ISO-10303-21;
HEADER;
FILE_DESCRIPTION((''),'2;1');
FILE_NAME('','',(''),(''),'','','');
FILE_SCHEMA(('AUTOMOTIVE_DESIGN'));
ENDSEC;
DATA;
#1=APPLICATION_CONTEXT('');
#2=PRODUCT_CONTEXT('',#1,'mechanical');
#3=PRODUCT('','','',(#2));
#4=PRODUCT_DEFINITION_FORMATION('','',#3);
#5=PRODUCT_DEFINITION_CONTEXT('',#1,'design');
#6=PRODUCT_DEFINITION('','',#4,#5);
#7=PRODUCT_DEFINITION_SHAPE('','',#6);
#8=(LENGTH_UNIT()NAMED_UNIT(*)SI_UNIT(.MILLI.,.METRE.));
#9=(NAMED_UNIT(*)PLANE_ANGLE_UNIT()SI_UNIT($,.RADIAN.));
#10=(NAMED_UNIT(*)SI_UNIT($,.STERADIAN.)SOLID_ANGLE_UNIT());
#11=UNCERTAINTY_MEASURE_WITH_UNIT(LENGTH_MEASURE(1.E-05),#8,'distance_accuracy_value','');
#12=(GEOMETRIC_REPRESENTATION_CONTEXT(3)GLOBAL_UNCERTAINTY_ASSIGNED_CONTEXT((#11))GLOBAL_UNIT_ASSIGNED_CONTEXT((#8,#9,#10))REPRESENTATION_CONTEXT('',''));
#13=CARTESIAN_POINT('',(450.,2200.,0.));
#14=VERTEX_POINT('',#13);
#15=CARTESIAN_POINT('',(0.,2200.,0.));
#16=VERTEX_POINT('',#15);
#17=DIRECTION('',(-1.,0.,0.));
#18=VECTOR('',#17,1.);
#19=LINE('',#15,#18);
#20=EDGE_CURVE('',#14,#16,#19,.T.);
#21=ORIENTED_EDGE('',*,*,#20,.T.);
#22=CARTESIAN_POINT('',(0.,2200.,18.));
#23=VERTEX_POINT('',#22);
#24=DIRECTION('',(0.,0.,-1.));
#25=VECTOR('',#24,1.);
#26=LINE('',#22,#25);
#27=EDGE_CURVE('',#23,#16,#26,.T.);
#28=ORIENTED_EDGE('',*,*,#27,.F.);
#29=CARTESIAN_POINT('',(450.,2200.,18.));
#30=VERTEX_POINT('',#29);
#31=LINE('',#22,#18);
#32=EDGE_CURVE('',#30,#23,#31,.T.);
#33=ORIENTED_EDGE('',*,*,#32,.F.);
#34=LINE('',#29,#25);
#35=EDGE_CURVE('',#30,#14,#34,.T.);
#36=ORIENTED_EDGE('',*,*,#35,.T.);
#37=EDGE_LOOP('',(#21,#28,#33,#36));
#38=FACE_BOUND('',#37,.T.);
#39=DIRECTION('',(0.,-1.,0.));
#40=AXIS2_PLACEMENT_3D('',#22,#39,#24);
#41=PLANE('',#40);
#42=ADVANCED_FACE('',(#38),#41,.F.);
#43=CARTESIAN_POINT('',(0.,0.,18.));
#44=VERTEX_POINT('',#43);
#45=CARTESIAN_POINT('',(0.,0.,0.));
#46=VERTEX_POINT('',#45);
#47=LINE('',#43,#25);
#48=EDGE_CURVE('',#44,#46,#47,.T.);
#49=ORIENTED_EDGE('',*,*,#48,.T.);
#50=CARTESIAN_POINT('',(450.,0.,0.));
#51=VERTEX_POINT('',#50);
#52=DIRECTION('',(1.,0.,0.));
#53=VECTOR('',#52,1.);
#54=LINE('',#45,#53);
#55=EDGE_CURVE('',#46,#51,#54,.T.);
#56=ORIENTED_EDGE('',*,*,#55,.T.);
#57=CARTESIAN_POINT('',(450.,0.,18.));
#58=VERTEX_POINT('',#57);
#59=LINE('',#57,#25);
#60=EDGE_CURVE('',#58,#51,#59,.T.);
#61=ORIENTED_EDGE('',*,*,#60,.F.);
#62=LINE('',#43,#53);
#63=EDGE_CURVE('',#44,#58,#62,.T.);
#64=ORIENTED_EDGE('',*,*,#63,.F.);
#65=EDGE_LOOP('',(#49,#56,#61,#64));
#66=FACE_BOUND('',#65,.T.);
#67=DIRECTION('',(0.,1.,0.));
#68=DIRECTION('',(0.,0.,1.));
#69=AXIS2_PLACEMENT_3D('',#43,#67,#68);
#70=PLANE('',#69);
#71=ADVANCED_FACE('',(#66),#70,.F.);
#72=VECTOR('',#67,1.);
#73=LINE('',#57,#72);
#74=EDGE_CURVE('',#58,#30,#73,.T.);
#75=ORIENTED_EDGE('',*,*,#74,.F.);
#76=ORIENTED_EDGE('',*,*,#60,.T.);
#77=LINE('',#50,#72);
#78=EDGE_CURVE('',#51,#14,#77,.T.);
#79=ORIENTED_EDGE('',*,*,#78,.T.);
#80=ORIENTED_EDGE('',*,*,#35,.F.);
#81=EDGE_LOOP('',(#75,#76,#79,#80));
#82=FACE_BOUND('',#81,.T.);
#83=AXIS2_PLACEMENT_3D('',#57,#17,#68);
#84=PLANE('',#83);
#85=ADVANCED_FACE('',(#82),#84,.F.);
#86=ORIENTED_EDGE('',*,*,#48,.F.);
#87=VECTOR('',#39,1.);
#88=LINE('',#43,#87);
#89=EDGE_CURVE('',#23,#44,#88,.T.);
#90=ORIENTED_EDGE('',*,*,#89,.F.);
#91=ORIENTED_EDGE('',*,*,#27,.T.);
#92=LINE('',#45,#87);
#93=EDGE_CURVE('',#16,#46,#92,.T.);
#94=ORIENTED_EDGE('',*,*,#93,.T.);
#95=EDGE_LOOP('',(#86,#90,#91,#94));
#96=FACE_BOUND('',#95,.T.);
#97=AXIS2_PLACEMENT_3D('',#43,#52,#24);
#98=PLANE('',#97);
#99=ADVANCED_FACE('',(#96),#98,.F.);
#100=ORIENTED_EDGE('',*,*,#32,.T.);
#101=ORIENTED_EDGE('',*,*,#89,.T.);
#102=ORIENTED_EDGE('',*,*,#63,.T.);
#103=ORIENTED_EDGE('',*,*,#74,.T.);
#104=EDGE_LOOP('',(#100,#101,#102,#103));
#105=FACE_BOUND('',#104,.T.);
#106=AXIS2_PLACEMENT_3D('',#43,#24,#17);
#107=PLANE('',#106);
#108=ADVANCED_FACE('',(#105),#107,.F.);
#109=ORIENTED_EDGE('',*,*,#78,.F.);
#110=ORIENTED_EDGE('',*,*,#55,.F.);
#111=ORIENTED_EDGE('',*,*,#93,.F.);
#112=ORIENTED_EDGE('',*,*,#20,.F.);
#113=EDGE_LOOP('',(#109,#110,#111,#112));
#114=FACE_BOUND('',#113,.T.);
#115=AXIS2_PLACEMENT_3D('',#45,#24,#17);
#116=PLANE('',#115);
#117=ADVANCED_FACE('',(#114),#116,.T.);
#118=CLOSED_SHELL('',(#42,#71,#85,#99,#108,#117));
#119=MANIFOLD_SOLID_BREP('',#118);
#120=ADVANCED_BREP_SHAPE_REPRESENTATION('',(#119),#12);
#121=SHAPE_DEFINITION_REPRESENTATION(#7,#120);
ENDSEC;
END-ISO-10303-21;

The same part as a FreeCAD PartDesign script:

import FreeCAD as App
import Part
import Sketcher

doc = App.newDocument("Part")
body = doc.addObject("PartDesign::Body", "Body")

# Sketch on XY plane
sketch1 = body.newObject("Sketcher::SketchObject", "Sketch")
sketch1.AttachmentSupport = (doc.getObject("XY_Plane"), [""])
sketch1.MapMode = "FlatFace"
sketch1.addGeometry(Part.LineSegment(App.Vector(0, 2200, 0), App.Vector(0, 0, 0)), False)
sketch1.addGeometry(Part.LineSegment(App.Vector(0, 0, 0), App.Vector(450, 0, 0)), False)
sketch1.addGeometry(Part.LineSegment(App.Vector(450, 0, 0), App.Vector(450, 2200, 0)), False)
sketch1.addGeometry(Part.LineSegment(App.Vector(450, 2200, 0), App.Vector(0, 2200, 0)), False)
sketch1.addConstraint(Sketcher.Constraint("Coincident", 0, 2, 1, 1))
sketch1.addConstraint(Sketcher.Constraint("Coincident", 1, 2, 2, 1))
sketch1.addConstraint(Sketcher.Constraint("Coincident", 2, 2, 3, 1))
sketch1.addConstraint(Sketcher.Constraint("Coincident", 3, 2, 0, 1))
sketch1.addConstraint(Sketcher.Constraint("Vertical", 0))
sketch1.addConstraint(Sketcher.Constraint("Horizontal", 1))
sketch1.addConstraint(Sketcher.Constraint("Vertical", 2))
sketch1.addConstraint(Sketcher.Constraint("Horizontal", 3))
sketch1.addConstraint(Sketcher.Constraint("Coincident", 0, 2, -1, 1))
sketch1.addConstraint(Sketcher.Constraint("DistanceX", 1, 1, 1, 2, 450.0))
sketch1.addConstraint(Sketcher.Constraint("DistanceY", 0, 2, 0, 1, 2200.0))
pad1 = body.newObject("PartDesign::Pad", "Pad")
pad1.Profile = sketch1
pad1.Length = 18

doc.recompute()
